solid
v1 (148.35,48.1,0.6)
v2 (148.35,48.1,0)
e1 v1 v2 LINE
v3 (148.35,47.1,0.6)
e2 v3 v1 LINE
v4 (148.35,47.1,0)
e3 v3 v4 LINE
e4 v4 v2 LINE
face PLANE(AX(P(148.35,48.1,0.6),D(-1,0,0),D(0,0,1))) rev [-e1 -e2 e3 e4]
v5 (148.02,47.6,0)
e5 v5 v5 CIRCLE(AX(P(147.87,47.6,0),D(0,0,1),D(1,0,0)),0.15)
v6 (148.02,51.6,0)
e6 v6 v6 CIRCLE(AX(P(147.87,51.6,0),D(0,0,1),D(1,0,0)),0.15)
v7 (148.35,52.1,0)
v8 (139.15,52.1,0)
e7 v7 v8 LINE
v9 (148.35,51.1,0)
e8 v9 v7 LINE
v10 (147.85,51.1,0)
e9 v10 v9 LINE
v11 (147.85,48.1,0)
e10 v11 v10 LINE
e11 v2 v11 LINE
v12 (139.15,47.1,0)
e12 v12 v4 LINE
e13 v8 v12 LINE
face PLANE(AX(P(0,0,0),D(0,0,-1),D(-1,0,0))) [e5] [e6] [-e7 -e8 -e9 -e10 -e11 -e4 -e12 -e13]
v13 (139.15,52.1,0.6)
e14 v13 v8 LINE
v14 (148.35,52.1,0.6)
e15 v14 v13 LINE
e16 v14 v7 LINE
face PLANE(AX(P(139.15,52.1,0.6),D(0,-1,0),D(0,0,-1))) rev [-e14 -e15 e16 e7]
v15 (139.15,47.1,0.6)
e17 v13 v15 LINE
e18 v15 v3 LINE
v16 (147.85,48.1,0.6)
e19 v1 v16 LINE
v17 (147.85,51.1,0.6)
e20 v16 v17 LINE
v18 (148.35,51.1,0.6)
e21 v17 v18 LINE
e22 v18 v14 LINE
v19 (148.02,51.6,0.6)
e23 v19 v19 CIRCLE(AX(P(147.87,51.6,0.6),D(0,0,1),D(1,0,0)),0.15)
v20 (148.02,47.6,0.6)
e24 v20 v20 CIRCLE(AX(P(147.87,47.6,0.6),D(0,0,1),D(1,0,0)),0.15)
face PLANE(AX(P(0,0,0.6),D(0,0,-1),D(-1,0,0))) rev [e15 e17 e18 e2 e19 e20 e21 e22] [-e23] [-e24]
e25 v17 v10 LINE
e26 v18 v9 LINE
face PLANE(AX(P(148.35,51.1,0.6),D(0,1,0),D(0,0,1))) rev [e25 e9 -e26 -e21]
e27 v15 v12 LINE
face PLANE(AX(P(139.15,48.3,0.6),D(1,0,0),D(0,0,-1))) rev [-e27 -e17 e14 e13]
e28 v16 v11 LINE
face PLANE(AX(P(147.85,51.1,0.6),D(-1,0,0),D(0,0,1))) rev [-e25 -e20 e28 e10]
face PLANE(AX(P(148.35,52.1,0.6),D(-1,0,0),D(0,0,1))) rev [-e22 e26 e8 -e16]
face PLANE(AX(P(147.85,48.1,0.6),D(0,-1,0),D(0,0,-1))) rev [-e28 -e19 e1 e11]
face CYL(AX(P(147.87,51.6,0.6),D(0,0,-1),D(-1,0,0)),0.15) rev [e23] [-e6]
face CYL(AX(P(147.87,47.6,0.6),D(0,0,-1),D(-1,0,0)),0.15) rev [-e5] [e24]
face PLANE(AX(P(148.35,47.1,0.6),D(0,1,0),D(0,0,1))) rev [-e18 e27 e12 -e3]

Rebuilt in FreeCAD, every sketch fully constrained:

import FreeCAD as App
import Part
import Sketcher


def add_polygon(sketch, points):
    """Adds a closed chain of lines whose ends are joined by coincident constraints."""
    first, n = sketch.GeometryCount, len(points)
    for a, b in zip(points, points[1:] + points[:1]):
        sketch.addGeometry(Part.LineSegment(App.Vector(*a, 0), App.Vector(*b, 0)), False)
    for i in range(n):
        sketch.addConstraint(Sketcher.Constraint("Coincident", first + i, 2, first + (i + 1) % n, 1))

doc = App.newDocument("Part")
body = doc.addObject("PartDesign::Body", "Body")

sketch1 = body.newObject("Sketcher::SketchObject", "Sketch")
sketch1.AttachmentSupport = (doc.getObject("XY_Plane"), [""])
sketch1.MapMode = "FlatFace"
add_polygon(sketch1, [(148.35, 51.1), (148.35, 52.1), (139.15, 52.1), (139.15, 47.1), (148.35, 47.1), (148.35, 48.1), (147.85, 48.1), (147.85, 51.1)])
sketch1.addGeometry(Part.Circle(App.Vector(147.87, 47.6, 0), App.Vector(0, 0, 1), 0.15), False)
sketch1.addGeometry(Part.Circle(App.Vector(147.87, 51.6, 0), App.Vector(0, 0, 1), 0.15), False)
sketch1.addConstraint(Sketcher.Constraint("Vertical", 0))
sketch1.addConstraint(Sketcher.Constraint("Horizontal", 1))
sketch1.addConstraint(Sketcher.Constraint("Vertical", 2))
sketch1.addConstraint(Sketcher.Constraint("Horizontal", 3))
sketch1.addConstraint(Sketcher.Constraint("Vertical", 4))
sketch1.addConstraint(Sketcher.Constraint("Horizontal", 5))
sketch1.addConstraint(Sketcher.Constraint("Vertical", 6))
sketch1.addConstraint(Sketcher.Constraint("Horizontal", 7))
sketch1.addConstraint(Sketcher.Constraint("Equal", 8, 9))
sketch1.addConstraint(Sketcher.Constraint("Vertical", 8, 3, 9, 3))
sketch1.addConstraint(Sketcher.Constraint("Vertical", 0, 2, 3, 2))
sketch1.addConstraint(Sketcher.Constraint("Equal", 0, 4))
sketch1.addConstraint(Sketcher.Constraint("Diameter", 8, 0.3))
sketch1.addConstraint(Sketcher.Constraint("DistanceY", 0, 1, 0, 2, 1.0))
sketch1.addConstraint(Sketcher.Constraint("DistanceY", 2, 2, 2, 1, 5.0))
sketch1.addConstraint(Sketcher.Constraint("DistanceX", 1, 2, 1, 1, 9.2))
sketch1.addConstraint(Sketcher.Constraint("DistanceX", 5, 2, 5, 1, 0.5))
sketch1.addConstraint(Sketcher.Constraint("DistanceY", 8, 3, 9, 3, 4.0))
sketch1.addConstraint(Sketcher.Constraint("DistanceY", -1, 1, 8, 3, 47.6))
sketch1.addConstraint(Sketcher.Constraint("DistanceY", -1, 1, 0, 2, 52.1))
sketch1.addConstraint(Sketcher.Constraint("DistanceX", -1, 1, 8, 3, 147.87))
sketch1.addConstraint(Sketcher.Constraint("DistanceX", -1, 1, 0, 2, 148.35))
pad1 = body.newObject("PartDesign::Pad", "Pad")
pad1.Profile = sketch1
pad1.Length = 0.6

doc.recompute()
